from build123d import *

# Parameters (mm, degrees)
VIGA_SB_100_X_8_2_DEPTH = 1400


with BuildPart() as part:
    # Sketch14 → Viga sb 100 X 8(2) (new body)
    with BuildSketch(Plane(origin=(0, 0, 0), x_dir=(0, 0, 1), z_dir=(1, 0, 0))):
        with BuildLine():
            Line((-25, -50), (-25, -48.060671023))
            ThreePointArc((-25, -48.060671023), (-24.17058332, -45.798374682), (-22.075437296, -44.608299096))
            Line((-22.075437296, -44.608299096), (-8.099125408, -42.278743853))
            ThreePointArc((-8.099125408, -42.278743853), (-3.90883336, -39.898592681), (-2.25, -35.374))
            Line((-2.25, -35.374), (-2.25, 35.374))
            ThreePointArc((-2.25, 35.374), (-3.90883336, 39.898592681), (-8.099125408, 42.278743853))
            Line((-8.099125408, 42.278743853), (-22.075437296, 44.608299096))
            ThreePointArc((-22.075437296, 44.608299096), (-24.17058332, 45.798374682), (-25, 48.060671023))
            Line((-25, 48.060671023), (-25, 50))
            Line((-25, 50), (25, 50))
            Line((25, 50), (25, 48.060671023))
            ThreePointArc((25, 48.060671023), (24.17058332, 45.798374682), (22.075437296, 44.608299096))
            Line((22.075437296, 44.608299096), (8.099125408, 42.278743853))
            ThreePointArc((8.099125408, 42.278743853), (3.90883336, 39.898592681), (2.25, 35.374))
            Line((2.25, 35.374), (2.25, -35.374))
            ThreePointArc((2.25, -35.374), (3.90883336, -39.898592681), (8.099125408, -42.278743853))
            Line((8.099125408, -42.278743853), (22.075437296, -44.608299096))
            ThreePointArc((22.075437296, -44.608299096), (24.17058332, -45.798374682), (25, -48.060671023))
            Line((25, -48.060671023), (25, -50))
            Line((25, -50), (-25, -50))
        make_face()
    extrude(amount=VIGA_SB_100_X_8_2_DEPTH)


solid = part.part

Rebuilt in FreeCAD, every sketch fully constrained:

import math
import FreeCAD as App
import Part
import Sketcher

V = App.Vector
Q = App.Units.Quantity

doc = App.newDocument("Part")
params = doc.addObject("Spreadsheet::Sheet", "Params")
for row, (alias, value) in enumerate([
    ("sketch1_radius", "7 mm"),
    ("sketch1_radius2", "3.5 mm"),
    ("sketch1_height", "50 mm"),
    ("pad1_length", "1400 mm"),
], start=1):
    params.set(f"A{row}", alias)
    params.set(f"B{row}", "=" + value)
    params.setAlias(f"B{row}", alias)

body = doc.addObject("PartDesign::Body", "Body")

# Sketch on YZ plane
sketch1 = doc.addObject("Sketcher::SketchObject", "Sketch")
body.addObject(sketch1)
sketch1.AttachmentSupport = (doc.YZ_Plane, [""])
sketch1.MapMode = "FlatFace"
sketch1.addGeometry(Part.LineSegment(V(48.1, -25, 0), V(50, -25, 0)), False)
sketch1.addGeometry(Part.LineSegment(V(50, -25, 0), V(50, 25, 0)), False)
sketch1.addGeometry(Part.LineSegment(V(50, 25, 0), V(48.1, 25, 0)), False)
sketch1.addGeometry(Part.ArcOfCircle(Part.Circle(V(48.1, 21.5, 0), V(0, 0, 1), 3.5), math.radians(90), math.radians(171)), False)
sketch1.addGeometry(Part.LineSegment(V(44.6, 22.1, 0), V(42.3, 8.1, 0)), False)
sketch1.addGeometry(Part.ArcOfCircle(Part.Circle(V(35.4, 9.2, 0), V(0, 0, 1), 7), math.radians(-90), math.radians(-9)), False)
sketch1.addGeometry(Part.LineSegment(V(35.4, 2.2, 0), V(-35.4, 2.2, 0)), False)
sketch1.addGeometry(Part.ArcOfCircle(Part.Circle(V(-35.4, 9.2, 0), V(0, 0, 1), 7), math.radians(-171), math.radians(-90)), False)
sketch1.addGeometry(Part.LineSegment(V(-42.3, 8.1, 0), V(-44.6, 22.1, 0)), False)
sketch1.addGeometry(Part.ArcOfCircle(Part.Circle(V(-48.1, 21.5, 0), V(0, 0, 1), 3.5), math.radians(9), math.radians(90)), False)
sketch1.addGeometry(Part.LineSegment(V(-48.1, 25, 0), V(-50, 25, 0)), False)
sketch1.addGeometry(Part.LineSegment(V(-50, 25, 0), V(-50, -25, 0)), False)
sketch1.addGeometry(Part.LineSegment(V(-50, -25, 0), V(-48.1, -25, 0)), False)
sketch1.addGeometry(Part.ArcOfCircle(Part.Circle(V(-48.1, -21.5, 0), V(0, 0, 1), 3.5), math.radians(-90), math.radians(-9)), False)
sketch1.addGeometry(Part.LineSegment(V(-44.6, -22.1, 0), V(-42.3, -8.1, 0)), False)
sketch1.addGeometry(Part.ArcOfCircle(Part.Circle(V(-35.4, -9.2, 0), V(0, 0, 1), 7), math.radians(90), math.radians(171)), False)
sketch1.addGeometry(Part.LineSegment(V(-35.4, -2.2, 0), V(35.4, -2.2, 0)), False)
sketch1.addGeometry(Part.ArcOfCircle(Part.Circle(V(35.4, -9.2, 0), V(0, 0, 1), 7), math.radians(9), math.radians(90)), False)
sketch1.addGeometry(Part.LineSegment(V(42.3, -8.1, 0), V(44.6, -22.1, 0)), False)
sketch1.addGeometry(Part.ArcOfCircle(Part.Circle(V(48.1, -21.5, 0), V(0, 0, 1), 3.5), math.radians(-171), math.radians(-90)), False)
sketch1.addConstraint(Sketcher.Constraint("Coincident", 0, 2, 1, 1))
sketch1.addConstraint(Sketcher.Constraint("Coincident", 1, 2, 2, 1))
sketch1.addConstraint(Sketcher.Constraint("Tangent", 2, 2, 3, 1))
sketch1.addConstraint(Sketcher.Constraint("Tangent", 3, 2, 4, 1))
sketch1.addConstraint(Sketcher.Constraint("Tangent", 4, 2, 5, 2))
sketch1.addConstraint(Sketcher.Constraint("Tangent", 5, 1, 6, 1))
sketch1.addConstraint(Sketcher.Constraint("Tangent", 6, 2, 7, 2))
sketch1.addConstraint(Sketcher.Constraint("Tangent", 7, 1, 8, 1))
sketch1.addConstraint(Sketcher.Constraint("Tangent", 8, 2, 9, 1))
sketch1.addConstraint(Sketcher.Constraint("Tangent", 9, 2, 10, 1))
sketch1.addConstraint(Sketcher.Constraint("Coincident", 10, 2, 11, 1))
sketch1.addConstraint(Sketcher.Constraint("Coincident", 11, 2, 12, 1))
sketch1.addConstraint(Sketcher.Constraint("Tangent", 12, 2, 13, 1))
sketch1.addConstraint(Sketcher.Constraint("Tangent", 13, 2, 14, 1))
sketch1.addConstraint(Sketcher.Constraint("Tangent", 14, 2, 15, 2))
sketch1.addConstraint(Sketcher.Constraint("Tangent", 15, 1, 16, 1))
sketch1.addConstraint(Sketcher.Constraint("Tangent", 16, 2, 17, 2))
sketch1.addConstraint(Sketcher.Constraint("Tangent", 17, 1, 18, 1))
sketch1.addConstraint(Sketcher.Constraint("Tangent", 18, 2, 19, 1))
sketch1.addConstraint(Sketcher.Constraint("Tangent", 19, 2, 0, 1))
sketch1.addConstraint(Sketcher.Constraint("Horizontal", 0))
sketch1.addConstraint(Sketcher.Constraint("Vertical", 1))
sketch1.addConstraint(Sketcher.Constraint("Horizontal", 2))
sketch1.addConstraint(Sketcher.Constraint("Horizontal", 6))
sketch1.addConstraint(Sketcher.Constraint("Horizontal", 10))
sketch1.addConstraint(Sketcher.Constraint("Vertical", 11))
sketch1.addConstraint(Sketcher.Constraint("Horizontal", 12))
sketch1.addConstraint(Sketcher.Constraint("Horizontal", 16))
sketch1.addConstraint(Sketcher.Constraint("Equal", 5, 7))
sketch1.addConstraint(Sketcher.Constraint("Equal", 3, 9))
sketch1.addConstraint(Sketcher.Constraint("Equal", 9, 13))
sketch1.addConstraint(Sketcher.Constraint("Equal", 7, 15))
sketch1.addConstraint(Sketcher.Constraint("Equal", 15, 17))
sketch1.addConstraint(Sketcher.Constraint("Equal", 13, 19))
sketch1.addConstraint(Sketcher.Constraint("Symmetric", 3, 3, 13, 3, -1, 1))
sketch1.addConstraint(Sketcher.Constraint("Symmetric", 5, 3, 15, 3, -1, 1))
sketch1.addConstraint(Sketcher.Constraint("Symmetric", 9, 3, 19, 3, -1, 1))
sketch1.addConstraint(Sketcher.Constraint("Symmetric", 3, 3, 9, 3, -2))
sketch1.addConstraint(Sketcher.Constraint("Parallel", 8, 18))
sketch1.addConstraint(Sketcher.Constraint("Horizontal", 4, 2, 7, 1))
sketch1.addConstraint(Sketcher.Constraint("Equal", 2, 10))
sketch1.addConstraint(Sketcher.Constraint("Radius", 5, Q("7 mm")))
sketch1.addConstraint(Sketcher.Constraint("Radius", 3, Q("3.5 mm")))
sketch1.addConstraint(Sketcher.Constraint("DistanceY", 1, 1, 1, 2, Q("50 mm")))
sketch1.addConstraint(Sketcher.Constraint("DistanceX", -1, 1, 0, 2, Q("50 mm")))
sketch1.addConstraint(Sketcher.Constraint("DistanceY", 15, 3, 7, 3, Q("18.5 mm")))
sketch1.addConstraint(Sketcher.Constraint("DistanceX", 6, 2, 6, 1, Q("70.748 mm")))
sketch1.addConstraint(Sketcher.Constraint("DistanceX", 0, 1, 0, 2, Q("1.939329 mm")))
sketch1.setExpression("Constraints[41]", "Params.sketch1_radius")
sketch1.setExpression("Constraints[42]", "Params.sketch1_radius2")
sketch1.setExpression("Constraints[43]", "Params.sketch1_height")
pad1 = doc.addObject("PartDesign::Pad", "Pad")
body.addObject(pad1)
pad1.Profile = sketch1
pad1.setExpression("Length", "Params.pad1_length")

doc.recompute()
